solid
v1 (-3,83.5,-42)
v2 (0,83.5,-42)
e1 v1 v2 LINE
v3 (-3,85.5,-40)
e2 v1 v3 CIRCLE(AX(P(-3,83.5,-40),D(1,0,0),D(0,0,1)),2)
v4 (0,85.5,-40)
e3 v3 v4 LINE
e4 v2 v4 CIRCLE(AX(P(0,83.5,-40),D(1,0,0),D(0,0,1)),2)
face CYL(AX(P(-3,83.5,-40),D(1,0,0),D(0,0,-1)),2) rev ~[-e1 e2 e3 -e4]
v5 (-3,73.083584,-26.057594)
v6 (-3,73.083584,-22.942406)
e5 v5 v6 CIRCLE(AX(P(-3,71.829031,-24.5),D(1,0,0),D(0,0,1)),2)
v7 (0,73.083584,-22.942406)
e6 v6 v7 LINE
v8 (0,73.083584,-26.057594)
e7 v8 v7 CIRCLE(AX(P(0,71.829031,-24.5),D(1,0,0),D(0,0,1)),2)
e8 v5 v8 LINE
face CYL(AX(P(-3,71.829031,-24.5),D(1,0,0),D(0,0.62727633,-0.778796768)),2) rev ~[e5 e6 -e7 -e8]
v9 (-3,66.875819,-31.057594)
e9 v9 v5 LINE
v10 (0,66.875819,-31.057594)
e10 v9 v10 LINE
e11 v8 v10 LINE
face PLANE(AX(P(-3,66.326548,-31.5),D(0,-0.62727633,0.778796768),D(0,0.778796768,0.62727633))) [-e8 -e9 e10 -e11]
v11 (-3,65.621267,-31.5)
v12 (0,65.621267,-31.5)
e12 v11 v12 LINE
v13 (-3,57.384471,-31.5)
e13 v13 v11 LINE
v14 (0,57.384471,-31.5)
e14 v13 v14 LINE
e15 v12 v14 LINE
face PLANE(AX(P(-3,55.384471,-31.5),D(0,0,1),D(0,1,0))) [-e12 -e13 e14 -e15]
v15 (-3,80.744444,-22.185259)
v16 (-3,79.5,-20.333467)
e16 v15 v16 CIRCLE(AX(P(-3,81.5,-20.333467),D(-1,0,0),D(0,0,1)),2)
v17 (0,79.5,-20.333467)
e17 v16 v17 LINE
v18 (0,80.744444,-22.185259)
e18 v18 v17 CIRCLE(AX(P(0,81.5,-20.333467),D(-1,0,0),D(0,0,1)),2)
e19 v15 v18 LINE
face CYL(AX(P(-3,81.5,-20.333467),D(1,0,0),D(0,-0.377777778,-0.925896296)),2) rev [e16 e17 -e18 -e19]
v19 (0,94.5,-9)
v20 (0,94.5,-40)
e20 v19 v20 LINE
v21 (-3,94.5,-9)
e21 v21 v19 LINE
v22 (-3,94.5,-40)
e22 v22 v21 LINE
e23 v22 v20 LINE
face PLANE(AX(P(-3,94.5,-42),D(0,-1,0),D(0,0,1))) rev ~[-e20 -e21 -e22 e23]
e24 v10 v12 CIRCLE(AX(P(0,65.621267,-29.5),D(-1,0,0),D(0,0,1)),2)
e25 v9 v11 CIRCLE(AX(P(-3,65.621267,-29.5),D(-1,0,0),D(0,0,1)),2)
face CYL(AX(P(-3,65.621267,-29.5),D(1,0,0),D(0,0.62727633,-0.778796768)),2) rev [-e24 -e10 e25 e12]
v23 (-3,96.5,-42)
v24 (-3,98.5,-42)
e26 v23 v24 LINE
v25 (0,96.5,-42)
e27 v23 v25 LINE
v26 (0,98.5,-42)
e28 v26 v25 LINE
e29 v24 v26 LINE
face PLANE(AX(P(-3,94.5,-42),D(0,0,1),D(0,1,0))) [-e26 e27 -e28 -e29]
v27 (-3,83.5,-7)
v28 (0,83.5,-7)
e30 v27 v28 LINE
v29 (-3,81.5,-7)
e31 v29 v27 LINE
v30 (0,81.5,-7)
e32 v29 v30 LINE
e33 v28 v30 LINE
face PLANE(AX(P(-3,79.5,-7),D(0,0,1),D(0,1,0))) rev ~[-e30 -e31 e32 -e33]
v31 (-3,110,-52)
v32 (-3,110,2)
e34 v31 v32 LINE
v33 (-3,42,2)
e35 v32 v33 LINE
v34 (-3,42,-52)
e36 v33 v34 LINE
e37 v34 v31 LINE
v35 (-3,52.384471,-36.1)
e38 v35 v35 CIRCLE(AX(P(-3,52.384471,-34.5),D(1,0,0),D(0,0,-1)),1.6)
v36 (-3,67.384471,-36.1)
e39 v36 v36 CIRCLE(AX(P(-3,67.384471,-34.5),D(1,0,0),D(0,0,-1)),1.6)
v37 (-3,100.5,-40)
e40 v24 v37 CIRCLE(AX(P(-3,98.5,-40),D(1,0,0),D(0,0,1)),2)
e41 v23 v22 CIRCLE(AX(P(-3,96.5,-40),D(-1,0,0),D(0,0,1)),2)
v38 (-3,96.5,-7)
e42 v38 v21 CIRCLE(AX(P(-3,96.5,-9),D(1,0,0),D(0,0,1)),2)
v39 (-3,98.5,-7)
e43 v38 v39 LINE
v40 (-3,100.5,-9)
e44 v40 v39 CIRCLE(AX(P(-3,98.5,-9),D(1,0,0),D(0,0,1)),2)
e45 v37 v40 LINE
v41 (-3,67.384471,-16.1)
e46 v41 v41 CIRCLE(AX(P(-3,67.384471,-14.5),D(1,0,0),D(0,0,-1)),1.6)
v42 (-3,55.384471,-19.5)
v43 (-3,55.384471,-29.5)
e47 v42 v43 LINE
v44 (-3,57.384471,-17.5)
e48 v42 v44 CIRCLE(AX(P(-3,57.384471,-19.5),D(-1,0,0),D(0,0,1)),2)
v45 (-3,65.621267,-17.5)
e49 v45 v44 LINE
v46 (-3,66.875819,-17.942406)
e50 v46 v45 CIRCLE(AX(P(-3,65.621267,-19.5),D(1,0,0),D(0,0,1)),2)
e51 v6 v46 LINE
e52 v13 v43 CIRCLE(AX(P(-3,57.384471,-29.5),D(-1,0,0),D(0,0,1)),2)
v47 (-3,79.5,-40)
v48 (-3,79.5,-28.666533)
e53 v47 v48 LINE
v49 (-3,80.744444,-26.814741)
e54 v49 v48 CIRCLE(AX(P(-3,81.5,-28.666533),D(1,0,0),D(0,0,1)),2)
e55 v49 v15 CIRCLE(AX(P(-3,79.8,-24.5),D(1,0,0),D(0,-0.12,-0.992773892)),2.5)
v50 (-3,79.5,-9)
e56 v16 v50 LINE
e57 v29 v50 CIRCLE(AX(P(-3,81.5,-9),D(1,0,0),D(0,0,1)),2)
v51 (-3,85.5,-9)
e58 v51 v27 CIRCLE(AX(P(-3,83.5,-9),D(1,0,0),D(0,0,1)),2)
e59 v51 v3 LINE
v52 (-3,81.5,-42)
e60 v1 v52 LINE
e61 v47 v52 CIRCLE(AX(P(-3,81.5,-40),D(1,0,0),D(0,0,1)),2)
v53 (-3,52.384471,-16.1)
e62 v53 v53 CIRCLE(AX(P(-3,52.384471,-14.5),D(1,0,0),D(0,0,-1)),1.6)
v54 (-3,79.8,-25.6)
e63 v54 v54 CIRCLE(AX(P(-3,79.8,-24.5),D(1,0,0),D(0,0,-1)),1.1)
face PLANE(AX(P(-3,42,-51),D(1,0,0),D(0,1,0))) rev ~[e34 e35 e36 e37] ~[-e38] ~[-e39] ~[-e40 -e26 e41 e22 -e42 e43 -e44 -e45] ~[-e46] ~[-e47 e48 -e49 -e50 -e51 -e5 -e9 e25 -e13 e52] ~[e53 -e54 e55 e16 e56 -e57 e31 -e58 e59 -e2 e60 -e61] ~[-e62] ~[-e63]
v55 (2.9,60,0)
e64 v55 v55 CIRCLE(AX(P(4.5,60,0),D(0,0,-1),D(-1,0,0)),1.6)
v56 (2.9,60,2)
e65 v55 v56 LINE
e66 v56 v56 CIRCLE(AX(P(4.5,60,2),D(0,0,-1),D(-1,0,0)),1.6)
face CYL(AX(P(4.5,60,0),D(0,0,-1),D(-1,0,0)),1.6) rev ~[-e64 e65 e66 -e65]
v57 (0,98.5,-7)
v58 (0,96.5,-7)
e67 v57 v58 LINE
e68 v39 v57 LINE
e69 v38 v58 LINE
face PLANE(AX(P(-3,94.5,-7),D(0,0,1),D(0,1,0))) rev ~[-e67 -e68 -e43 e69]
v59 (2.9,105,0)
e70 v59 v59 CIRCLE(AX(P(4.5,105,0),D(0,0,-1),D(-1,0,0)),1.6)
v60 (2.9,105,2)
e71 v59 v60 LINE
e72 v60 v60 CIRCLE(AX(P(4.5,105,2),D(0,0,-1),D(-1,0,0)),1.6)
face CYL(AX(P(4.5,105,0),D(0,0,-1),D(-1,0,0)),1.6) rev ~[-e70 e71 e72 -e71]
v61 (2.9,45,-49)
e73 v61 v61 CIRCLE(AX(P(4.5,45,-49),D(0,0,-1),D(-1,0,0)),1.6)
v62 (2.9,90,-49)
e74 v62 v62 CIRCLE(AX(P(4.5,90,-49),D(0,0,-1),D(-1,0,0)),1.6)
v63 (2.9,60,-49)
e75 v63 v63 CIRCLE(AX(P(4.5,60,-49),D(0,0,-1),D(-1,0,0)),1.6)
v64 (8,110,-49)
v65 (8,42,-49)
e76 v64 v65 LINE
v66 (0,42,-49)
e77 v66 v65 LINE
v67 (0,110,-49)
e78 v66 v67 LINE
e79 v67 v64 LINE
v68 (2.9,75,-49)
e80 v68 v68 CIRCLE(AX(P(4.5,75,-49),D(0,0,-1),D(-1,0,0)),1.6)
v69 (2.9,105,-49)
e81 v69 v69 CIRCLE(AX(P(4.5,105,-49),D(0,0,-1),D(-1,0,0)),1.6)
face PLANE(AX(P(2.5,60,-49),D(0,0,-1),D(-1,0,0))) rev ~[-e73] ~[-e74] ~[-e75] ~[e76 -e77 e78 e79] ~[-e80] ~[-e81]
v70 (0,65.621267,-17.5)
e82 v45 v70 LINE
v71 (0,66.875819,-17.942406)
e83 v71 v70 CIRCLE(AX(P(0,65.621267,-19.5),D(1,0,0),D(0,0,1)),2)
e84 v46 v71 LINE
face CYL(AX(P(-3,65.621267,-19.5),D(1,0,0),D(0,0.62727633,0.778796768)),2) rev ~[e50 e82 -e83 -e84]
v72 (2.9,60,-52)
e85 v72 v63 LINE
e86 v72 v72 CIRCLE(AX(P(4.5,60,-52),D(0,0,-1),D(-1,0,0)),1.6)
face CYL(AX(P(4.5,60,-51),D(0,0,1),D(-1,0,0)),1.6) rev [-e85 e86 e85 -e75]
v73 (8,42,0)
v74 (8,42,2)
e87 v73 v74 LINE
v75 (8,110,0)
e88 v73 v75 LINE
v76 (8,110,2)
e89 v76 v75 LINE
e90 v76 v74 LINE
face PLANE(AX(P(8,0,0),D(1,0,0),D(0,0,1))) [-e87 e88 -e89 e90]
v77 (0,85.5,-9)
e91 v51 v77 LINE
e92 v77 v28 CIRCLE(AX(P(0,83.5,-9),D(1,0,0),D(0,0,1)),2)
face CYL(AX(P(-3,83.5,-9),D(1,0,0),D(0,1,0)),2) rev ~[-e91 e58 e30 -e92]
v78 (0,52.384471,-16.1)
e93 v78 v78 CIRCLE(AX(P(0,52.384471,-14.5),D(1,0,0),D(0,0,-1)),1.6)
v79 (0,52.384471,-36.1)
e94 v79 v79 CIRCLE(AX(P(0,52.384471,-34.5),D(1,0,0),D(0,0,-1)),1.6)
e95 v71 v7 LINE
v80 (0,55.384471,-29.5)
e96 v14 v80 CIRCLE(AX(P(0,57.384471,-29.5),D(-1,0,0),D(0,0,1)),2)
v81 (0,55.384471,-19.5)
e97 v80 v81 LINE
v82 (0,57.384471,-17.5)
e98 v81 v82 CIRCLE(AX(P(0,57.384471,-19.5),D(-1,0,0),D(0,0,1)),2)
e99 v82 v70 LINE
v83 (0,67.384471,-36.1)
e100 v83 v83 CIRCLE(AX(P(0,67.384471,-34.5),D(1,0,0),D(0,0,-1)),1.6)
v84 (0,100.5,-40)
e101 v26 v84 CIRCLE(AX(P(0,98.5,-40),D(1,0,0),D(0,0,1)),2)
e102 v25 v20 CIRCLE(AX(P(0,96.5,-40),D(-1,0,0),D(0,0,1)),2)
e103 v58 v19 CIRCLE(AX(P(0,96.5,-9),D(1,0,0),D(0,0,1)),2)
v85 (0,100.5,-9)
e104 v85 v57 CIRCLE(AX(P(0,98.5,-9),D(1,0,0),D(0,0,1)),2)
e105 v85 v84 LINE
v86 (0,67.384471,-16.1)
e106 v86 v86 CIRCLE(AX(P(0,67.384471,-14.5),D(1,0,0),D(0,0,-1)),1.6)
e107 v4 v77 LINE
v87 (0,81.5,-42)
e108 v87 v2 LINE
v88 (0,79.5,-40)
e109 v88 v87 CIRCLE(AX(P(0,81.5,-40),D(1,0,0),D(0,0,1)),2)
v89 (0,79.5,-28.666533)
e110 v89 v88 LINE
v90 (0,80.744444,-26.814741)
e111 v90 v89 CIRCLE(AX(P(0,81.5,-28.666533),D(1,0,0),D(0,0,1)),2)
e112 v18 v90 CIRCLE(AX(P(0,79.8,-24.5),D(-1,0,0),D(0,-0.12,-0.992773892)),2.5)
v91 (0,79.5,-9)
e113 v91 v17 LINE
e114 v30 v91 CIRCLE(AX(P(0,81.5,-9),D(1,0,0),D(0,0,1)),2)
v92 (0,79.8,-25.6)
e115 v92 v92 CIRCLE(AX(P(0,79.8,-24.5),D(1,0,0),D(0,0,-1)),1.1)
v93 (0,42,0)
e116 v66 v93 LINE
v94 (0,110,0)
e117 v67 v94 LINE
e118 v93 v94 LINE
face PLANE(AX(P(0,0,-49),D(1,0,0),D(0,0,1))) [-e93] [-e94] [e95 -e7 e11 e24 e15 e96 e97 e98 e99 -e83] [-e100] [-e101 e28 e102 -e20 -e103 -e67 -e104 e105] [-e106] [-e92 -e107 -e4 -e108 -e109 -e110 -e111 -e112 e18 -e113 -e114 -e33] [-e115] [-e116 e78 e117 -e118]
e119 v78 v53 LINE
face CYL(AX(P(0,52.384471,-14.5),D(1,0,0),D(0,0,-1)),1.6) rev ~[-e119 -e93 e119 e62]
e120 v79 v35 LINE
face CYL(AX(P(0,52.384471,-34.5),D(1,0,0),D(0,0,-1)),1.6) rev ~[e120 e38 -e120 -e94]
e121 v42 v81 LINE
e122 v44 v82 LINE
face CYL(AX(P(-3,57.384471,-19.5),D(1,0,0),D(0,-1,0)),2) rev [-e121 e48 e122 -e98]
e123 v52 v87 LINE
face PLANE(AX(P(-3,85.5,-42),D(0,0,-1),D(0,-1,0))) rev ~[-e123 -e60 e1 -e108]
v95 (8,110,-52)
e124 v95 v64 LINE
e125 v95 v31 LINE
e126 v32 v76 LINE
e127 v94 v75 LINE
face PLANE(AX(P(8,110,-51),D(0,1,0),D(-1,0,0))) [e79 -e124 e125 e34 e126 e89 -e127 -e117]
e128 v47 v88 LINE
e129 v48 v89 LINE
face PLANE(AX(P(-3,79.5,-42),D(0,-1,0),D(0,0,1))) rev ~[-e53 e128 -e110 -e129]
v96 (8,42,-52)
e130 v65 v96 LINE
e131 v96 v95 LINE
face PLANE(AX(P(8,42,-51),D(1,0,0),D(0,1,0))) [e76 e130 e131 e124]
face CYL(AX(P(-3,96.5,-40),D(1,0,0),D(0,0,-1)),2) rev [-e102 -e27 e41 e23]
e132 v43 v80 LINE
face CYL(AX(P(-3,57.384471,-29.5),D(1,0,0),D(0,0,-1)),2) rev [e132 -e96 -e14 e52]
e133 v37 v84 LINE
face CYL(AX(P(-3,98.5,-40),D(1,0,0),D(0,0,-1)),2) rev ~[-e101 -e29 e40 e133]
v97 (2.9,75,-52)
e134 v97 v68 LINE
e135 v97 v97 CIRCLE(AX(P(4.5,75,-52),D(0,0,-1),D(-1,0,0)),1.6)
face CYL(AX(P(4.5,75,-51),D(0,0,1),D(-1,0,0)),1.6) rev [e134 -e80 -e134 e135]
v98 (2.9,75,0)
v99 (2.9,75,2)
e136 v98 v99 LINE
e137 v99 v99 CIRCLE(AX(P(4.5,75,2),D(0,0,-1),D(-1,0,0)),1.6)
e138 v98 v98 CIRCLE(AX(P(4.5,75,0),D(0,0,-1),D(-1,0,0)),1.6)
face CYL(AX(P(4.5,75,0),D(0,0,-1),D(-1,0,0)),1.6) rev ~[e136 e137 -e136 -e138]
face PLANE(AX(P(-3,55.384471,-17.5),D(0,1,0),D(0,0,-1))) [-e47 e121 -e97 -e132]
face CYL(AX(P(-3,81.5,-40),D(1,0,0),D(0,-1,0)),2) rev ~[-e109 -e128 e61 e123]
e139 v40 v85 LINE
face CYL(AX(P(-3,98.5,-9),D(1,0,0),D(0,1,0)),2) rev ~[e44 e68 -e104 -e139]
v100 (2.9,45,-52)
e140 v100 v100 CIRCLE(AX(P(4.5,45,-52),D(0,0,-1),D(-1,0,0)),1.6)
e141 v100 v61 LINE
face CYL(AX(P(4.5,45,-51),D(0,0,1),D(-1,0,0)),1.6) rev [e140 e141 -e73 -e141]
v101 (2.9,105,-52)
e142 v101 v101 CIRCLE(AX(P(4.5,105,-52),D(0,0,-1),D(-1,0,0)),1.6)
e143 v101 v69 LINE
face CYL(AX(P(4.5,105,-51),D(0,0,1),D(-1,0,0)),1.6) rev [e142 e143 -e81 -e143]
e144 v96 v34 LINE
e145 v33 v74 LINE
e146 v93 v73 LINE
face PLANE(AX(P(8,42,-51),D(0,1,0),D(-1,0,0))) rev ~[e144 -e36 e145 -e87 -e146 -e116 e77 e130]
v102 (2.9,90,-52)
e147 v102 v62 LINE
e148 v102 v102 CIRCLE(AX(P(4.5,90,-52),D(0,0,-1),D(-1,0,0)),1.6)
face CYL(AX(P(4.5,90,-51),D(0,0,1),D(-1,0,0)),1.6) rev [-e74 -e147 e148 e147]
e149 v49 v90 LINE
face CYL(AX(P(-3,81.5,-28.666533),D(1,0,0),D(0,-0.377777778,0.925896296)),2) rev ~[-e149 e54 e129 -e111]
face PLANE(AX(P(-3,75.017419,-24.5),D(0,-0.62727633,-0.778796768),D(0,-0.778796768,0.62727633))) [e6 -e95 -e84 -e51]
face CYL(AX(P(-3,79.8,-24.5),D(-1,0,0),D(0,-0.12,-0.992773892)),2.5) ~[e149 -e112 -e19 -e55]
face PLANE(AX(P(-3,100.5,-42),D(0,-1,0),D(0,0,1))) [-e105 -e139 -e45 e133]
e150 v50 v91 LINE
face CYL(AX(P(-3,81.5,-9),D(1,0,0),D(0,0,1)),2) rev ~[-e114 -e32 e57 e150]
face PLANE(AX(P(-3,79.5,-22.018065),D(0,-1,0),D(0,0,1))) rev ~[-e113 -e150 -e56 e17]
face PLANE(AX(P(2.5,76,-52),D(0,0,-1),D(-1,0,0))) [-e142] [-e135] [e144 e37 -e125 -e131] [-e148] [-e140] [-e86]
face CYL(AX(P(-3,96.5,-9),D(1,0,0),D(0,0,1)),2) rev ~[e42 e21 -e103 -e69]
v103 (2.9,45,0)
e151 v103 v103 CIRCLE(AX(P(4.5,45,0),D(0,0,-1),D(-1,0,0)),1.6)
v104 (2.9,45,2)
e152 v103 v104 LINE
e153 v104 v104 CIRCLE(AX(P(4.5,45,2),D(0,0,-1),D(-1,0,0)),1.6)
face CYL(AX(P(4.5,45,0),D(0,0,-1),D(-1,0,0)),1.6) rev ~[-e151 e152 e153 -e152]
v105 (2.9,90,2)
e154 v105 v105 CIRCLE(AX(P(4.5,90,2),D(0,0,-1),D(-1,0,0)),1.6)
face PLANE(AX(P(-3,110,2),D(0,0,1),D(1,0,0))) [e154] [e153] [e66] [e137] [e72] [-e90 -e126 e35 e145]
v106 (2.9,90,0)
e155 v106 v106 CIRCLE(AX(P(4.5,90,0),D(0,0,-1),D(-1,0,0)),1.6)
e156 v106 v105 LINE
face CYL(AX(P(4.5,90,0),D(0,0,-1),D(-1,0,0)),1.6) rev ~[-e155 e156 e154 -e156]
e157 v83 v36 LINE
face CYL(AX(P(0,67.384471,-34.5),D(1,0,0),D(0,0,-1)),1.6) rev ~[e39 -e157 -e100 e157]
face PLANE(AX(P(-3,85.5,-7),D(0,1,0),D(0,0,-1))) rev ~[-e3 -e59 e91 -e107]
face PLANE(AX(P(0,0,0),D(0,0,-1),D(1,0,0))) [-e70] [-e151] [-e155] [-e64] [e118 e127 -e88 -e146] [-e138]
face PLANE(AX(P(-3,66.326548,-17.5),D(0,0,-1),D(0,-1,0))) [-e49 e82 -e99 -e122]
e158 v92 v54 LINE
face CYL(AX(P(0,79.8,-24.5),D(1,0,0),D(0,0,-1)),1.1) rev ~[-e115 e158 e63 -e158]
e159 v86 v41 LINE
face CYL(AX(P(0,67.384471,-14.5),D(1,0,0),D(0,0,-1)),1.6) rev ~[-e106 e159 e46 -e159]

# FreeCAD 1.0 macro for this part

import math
import FreeCAD as App
import Part
import Sketcher

V = App.Vector
Q = App.Units.Quantity


def edges_at(feature, points):
    """Names of the edges that pass closest to the given points."""
    edges = feature.Shape.Edges
    near = lambda p: min(range(len(edges)), key=lambda i: edges[i].distToShape(Part.Vertex(*p))[0])
    return sorted({f"Edge{near(p) + 1}" for p in points})

doc = App.newDocument("Part")
body = doc.addObject("PartDesign::Body", "Body")

# Sketch on XZ plane
sketch1 = body.newObject("Sketcher::SketchObject", "Sketch")
sketch1.AttachmentSupport = (doc.getObject("XZ_Plane"), [""])
sketch1.MapMode = "FlatFace"
sketch1.addGeometry([
    Part.LineSegment(V(8, 0, 0), V(0, 0, 0)),  # 0
    Part.LineSegment(V(0, 0, 0), V(0, -49, 0)),  # 1
    Part.LineSegment(V(0, -49, 0), V(-3, -49, 0)),  # 2
    Part.LineSegment(V(-3, -49, 0), V(-3, 3, 0)),  # 3
    Part.LineSegment(V(-3, 3, 0), V(8, 3, 0)),  # 4
    Part.LineSegment(V(8, 3, 0), V(8, 0, 0)),  # 5
], False)
sketch1.addConstraint([
    Sketcher.Constraint("Coincident", 0, 2, 1, 1),
    Sketcher.Constraint("Coincident", 1, 2, 2, 1),
    Sketcher.Constraint("Coincident", 2, 2, 3, 1),
    Sketcher.Constraint("Coincident", 3, 2, 4, 1),
    Sketcher.Constraint("Coincident", 4, 2, 5, 1),
    Sketcher.Constraint("Coincident", 5, 2, 0, 1),
    Sketcher.Constraint("Horizontal", 0),
    Sketcher.Constraint("Vertical", 1),
    Sketcher.Constraint("Horizontal", 2),
    Sketcher.Constraint("Vertical", 3),
    Sketcher.Constraint("Horizontal", 4),
    Sketcher.Constraint("Vertical", 5),
    Sketcher.Constraint("Coincident", 0, 2, -1, 1),
    Sketcher.Constraint("Equal", 2, 5),
    Sketcher.Constraint("DistanceX", 0, 2, 0, 1, Q("8 mm")),
    Sketcher.Constraint("DistanceX", 2, 2, 2, 1, Q("3 mm")),
    Sketcher.Constraint("DistanceY", 1, 2, 1, 1, Q("49 mm")),
])
pad1 = body.newObject("PartDesign::Pad", "Pad")
pad1.Profile = sketch1
pad1.Length = 120
pad1.Reversed = True

# Sketch on XY plane
sketch2 = body.newObject("Sketcher::SketchObject", "Sketch001")
sketch2.AttachmentSupport = (doc.getObject("XY_Plane"), [""])
sketch2.MapMode = "FlatFace"
sketch2.addGeometry([
    Part.Circle(V(4.5, 60, 0), V(0, 0, 1), 1.6),  # 0
    Part.Circle(V(4.5, 45, 0), V(0, 0, 1), 1.6),  # 1
    Part.Circle(V(4.5, 30, 0), V(0, 0, 1), 1.6),  # 2
    Part.Circle(V(4.5, 15, 0), V(0, 0, 1), 1.6),  # 3
    Part.Circle(V(4.5, 75, 0), V(0, 0, 1), 1.6),  # 4
    Part.Circle(V(4.5, 90, 0), V(0, 0, 1), 1.6),  # 5
    Part.Circle(V(4.5, 105, 0), V(0, 0, 1), 1.6),  # 6
], False)
sketch2.addConstraint([
    Sketcher.Constraint("Equal", 0, 1),
    Sketcher.Constraint("Equal", 1, 2),
    Sketcher.Constraint("Equal", 2, 3),
    Sketcher.Constraint("Equal", 3, 4),
    Sketcher.Constraint("Equal", 4, 5),
    Sketcher.Constraint("Equal", 5, 6),
    Sketcher.Constraint("Vertical", 0, 3, 1, 3),
    Sketcher.Constraint("Vertical", 1, 3, 2, 3),
    Sketcher.Constraint("Vertical", 2, 3, 3, 3),
    Sketcher.Constraint("Vertical", 3, 3, 4, 3),
    Sketcher.Constraint("Vertical", 4, 3, 5, 3),
    Sketcher.Constraint("Vertical", 5, 3, 6, 3),
    Sketcher.Constraint("Diameter", 0, Q("3.2 mm")),
    Sketcher.Constraint("DistanceY", -1, 1, 0, 3, Q("60 mm")),
    Sketcher.Constraint("DistanceY", -1, 1, 1, 3, Q("45 mm")),
    Sketcher.Constraint("DistanceY", -1, 1, 2, 3, Q("30 mm")),
    Sketcher.Constraint("DistanceY", -1, 1, 3, 3, Q("15 mm")),
    Sketcher.Constraint("DistanceY", -1, 1, 4, 3, Q("75 mm")),
    Sketcher.Constraint("DistanceY", -1, 1, 5, 3, Q("90 mm")),
    Sketcher.Constraint("DistanceY", -1, 1, 6, 3, Q("105 mm")),
    Sketcher.Constraint("DistanceX", -1, 1, 0, 3, Q("4.5 mm")),
])
pocket1 = body.newObject("PartDesign::Pocket", "Pocket")
pocket1.Profile = sketch2
pocket1.Length = 120
pocket1.Reversed = True

# Sketch on YZ plane
sketch3 = body.newObject("Sketcher::SketchObject", "Sketch002")
sketch3.AttachmentSupport = (doc.getObject("YZ_Plane"), [""])
sketch3.MapMode = "FlatFace"
sketch3.addGeometry([
    Part.Circle(V(7.4, -14.5, 0), V(0, 0, 1), 1.6),  # 0
    Part.Circle(V(22.4, -14.5, 0), V(0, 0, 1), 1.6),  # 1
    Part.Circle(V(37.4, -14.5, 0), V(0, 0, 1), 1.6),  # 2
    Part.Circle(V(52.4, -14.5, 0), V(0, 0, 1), 1.6),  # 3
    Part.Circle(V(67.4, -14.5, 0), V(0, 0, 1), 1.6),  # 4
    Part.Circle(V(67.4, -34.5, 0), V(0, 0, 1), 1.6),  # 5
    Part.Circle(V(52.4, -34.5, 0), V(0, 0, 1), 1.6),  # 6
    Part.Circle(V(37.4, -34.5, 0), V(0, 0, 1), 1.6),  # 7
    Part.Circle(V(22.4, -34.5, 0), V(0, 0, 1), 1.6),  # 8
    Part.Circle(V(7.4, -34.5, 0), V(0, 0, 1), 1.6),  # 9
], False)
sketch3.addConstraint([
    Sketcher.Constraint("Equal", 0, 1),
    Sketcher.Constraint("Equal", 1, 2),
    Sketcher.Constraint("Equal", 2, 3),
    Sketcher.Constraint("Equal", 3, 4),
    Sketcher.Constraint("Equal", 4, 5),
    Sketcher.Constraint("Equal", 5, 6),
    Sketcher.Constraint("Equal", 6, 7),
    Sketcher.Constraint("Equal", 7, 8),
    Sketcher.Constraint("Equal", 8, 9),
    Sketcher.Constraint("Horizontal", 0, 3, 1, 3),
    Sketcher.Constraint("Horizontal", 1, 3, 2, 3),
    Sketcher.Constraint("Horizontal", 2, 3, 3, 3),
    Sketcher.Constraint("Horizontal", 3, 3, 4, 3),
    Sketcher.Constraint("Horizontal", 5, 3, 6, 3),
    Sketcher.Constraint("Horizontal", 6, 3, 7, 3),
    Sketcher.Constraint("Horizontal", 7, 3, 8, 3),
    Sketcher.Constraint("Horizontal", 8, 3, 9, 3),
    Sketcher.Constraint("Vertical", 4, 3, 5, 3),
    Sketcher.Constraint("Vertical", 3, 3, 6, 3),
    Sketcher.Constraint("Vertical", 2, 3, 7, 3),
    Sketcher.Constraint("Vertical", 1, 3, 8, 3),
    Sketcher.Constraint("Vertical", 0, 3, 9, 3),
    Sketcher.Constraint("Diameter", 0, Q("3.2 mm")),
    Sketcher.Constraint("DistanceX", 0, 3, 1, 3, Q("15 mm")),
    Sketcher.Constraint("DistanceX", 1, 3, 2, 3, Q("15 mm")),
    Sketcher.Constraint("DistanceX", 2, 3, 3, 3, Q("15 mm")),
    Sketcher.Constraint("DistanceX", 3, 3, 4, 3, Q("15 mm")),
    Sketcher.Constraint("DistanceY", 5, 3, 4, 3, Q("20 mm")),
    Sketcher.Constraint("DistanceY", 0, 3, -1, 1, Q("14.5 mm")),
    Sketcher.Constraint("DistanceX", -1, 1, 0, 3, Q("7.384471 mm")),
])
pocket2 = body.newObject("PartDesign::Pocket", "Pocket001")
pocket2.Profile = sketch3
pocket2.Length = 10

# Sketch on YZ plane
sketch4 = body.newObject("Sketcher::SketchObject", "Sketch003")
sketch4.AttachmentSupport = (doc.getObject("YZ_Plane"), [""])
sketch4.MapMode = "FlatFace"
sketch4.addGeometry([
    Part.Circle(V(117, -15.7, 0), V(0, 0, 1), 1.1),
    Part.Circle(V(117, -33.3, 0), V(0, 0, 1), 1.1),
    Part.Circle(V(79.8, -24.5, 0), V(0, 0, 1), 1.1),
], False)
sketch4.addConstraint([
    Sketcher.Constraint("Equal", 0, 1),
    Sketcher.Constraint("Equal", 1, 2),
    Sketcher.Constraint("Vertical", 0, 3, 1, 3),
    Sketcher.Constraint("Diameter", 0, Q("2.2 mm")),
    Sketcher.Constraint("DistanceX", -1, 1, 0, 3, Q("117 mm")),
    Sketcher.Constraint("DistanceY", 0, 3, -1, 1, Q("15.7 mm")),
    Sketcher.Constraint("DistanceY", 1, 3, -1, 1, Q("33.3 mm")),
    Sketcher.Constraint("DistanceX", -1, 1, 2, 3, Q("79.8 mm")),
    Sketcher.Constraint("DistanceY", 2, 3, -1, 1, Q("24.5 mm")),
])
pocket3 = body.newObject("PartDesign::Pocket", "Pocket002")
pocket3.Profile = sketch4
pocket3.Length = 12

# Sketch on XY plane
sketch5 = body.newObject("Sketcher::SketchObject", "Sketch004")
sketch5.AttachmentSupport = (doc.getObject("XY_Plane"), [""])
sketch5.MapMode = "FlatFace"
sketch5.AttachmentOffset = App.Placement(V(0, 0, -49), App.Rotation())
sketch5.addGeometry([
    Part.LineSegment(V(8, 120, 0), V(8, 0, 0)),
    Part.LineSegment(V(8, 0, 0), V(-3, 0, 0)),
    Part.LineSegment(V(-3, 0, 0), V(-3, 120, 0)),
    Part.LineSegment(V(-3, 120, 0), V(8, 120, 0)),
], False)
sketch5.addConstraint([
    Sketcher.Constraint("Coincident", 0, 2, 1, 1),
    Sketcher.Constraint("Coincident", 1, 2, 2, 1),
    Sketcher.Constraint("Coincident", 2, 2, 3, 1),
    Sketcher.Constraint("Coincident", 3, 2, 0, 1),
    Sketcher.Constraint("Vertical", 0),
    Sketcher.Constraint("Horizontal", 1),
    Sketcher.Constraint("Vertical", 2),
    Sketcher.Constraint("Horizontal", 3),
    Sketcher.Constraint("PointOnObject", 0, 2, -1),
    Sketcher.Constraint("DistanceX", 1, 2, 1, 1, Q("11 mm")),
    Sketcher.Constraint("DistanceY", 0, 2, 0, 1, Q("120 mm")),
    Sketcher.Constraint("DistanceX", -1, 1, 0, 2, Q("8 mm")),
])
pad2 = body.newObject("PartDesign::Pad", "Pad001")
pad2.Profile = sketch5
pad2.Length = 2
pad2.Reversed = True
doc.recompute()

datumplane = body.newObject("PartDesign::Plane", "DatumPlane")
datumplane.AttachmentSupport = (doc.getObject("XY_Plane"), [""])
datumplane.MapMode = "FlatFace"
datumplane.AttachmentOffset = App.Placement(V(0, 0, -24.5), App.Rotation())
mirrored = body.newObject("PartDesign::Mirrored", "Mirrored")
mirrored.Originals = [pocket1]
mirrored.MirrorPlane = (datumplane, [""])
body.Tip = mirrored

# Sketch on YZ plane
sketch6 = body.newObject("Sketcher::SketchObject", "Sketch005")
sketch6.AttachmentSupport = (doc.getObject("YZ_Plane"), [""])
sketch6.MapMode = "FlatFace"
sketch6.addGeometry([
    Part.LineSegment(V(30, 0, 0), V(0, 0, 0)),
    Part.LineSegment(V(0, 0, 0), V(0, -49, 0)),
    Part.LineSegment(V(0, -49, 0), V(30, -49, 0)),
    Part.LineSegment(V(30, -49, 0), V(30, 0, 0)),
], False)
sketch6.addConstraint([
    Sketcher.Constraint("Coincident", 0, 2, 1, 1),
    Sketcher.Constraint("Coincident", 1, 2, 2, 1),
    Sketcher.Constraint("Coincident", 2, 2, 3, 1),
    Sketcher.Constraint("Coincident", 3, 2, 0, 1),
    Sketcher.Constraint("Horizontal", 0),
    Sketcher.Constraint("Vertical", 1),
    Sketcher.Constraint("Horizontal", 2),
    Sketcher.Constraint("Vertical", 3),
    Sketcher.Constraint("Coincident", 0, 2, -1, 1),
    Sketcher.Constraint("DistanceX", 0, 2, 0, 1, Q("30 mm")),
    Sketcher.Constraint("DistanceY", 1, 2, 1, 1, Q("49 mm")),
])
pocket4 = body.newObject("PartDesign::Pocket", "Pocket003")
pocket4.Profile = sketch6
pocket4.Length = 10

# Sketch on YZ plane
sketch7 = body.newObject("Sketcher::SketchObject", "Sketch006")
sketch7.AttachmentSupport = (doc.getObject("YZ_Plane"), [""])
sketch7.MapMode = "FlatFace"
sketch7.addGeometry([
    Part.LineSegment(V(30, 3, 0), V(0, 3, 0)),
    Part.LineSegment(V(0, 3, 0), V(0, 0, 0)),
    Part.LineSegment(V(0, 0, 0), V(30, 0, 0)),
    Part.LineSegment(V(30, 0, 0), V(30, 3, 0)),
], False)
sketch7.addConstraint([
    Sketcher.Constraint("Coincident", 0, 2, 1, 1),
    Sketcher.Constraint("Coincident", 1, 2, 2, 1),
    Sketcher.Constraint("Coincident", 2, 2, 3, 1),
    Sketcher.Constraint("Coincident", 3, 2, 0, 1),
    Sketcher.Constraint("Horizontal", 0),
    Sketcher.Constraint("Vertical", 1),
    Sketcher.Constraint("Horizontal", 2),
    Sketcher.Constraint("Vertical", 3),
    Sketcher.Constraint("Coincident", 1, 2, -1, 1),
    Sketcher.Constraint("DistanceX", 0, 2, 0, 1, Q("30 mm")),
    Sketcher.Constraint("DistanceY", 1, 2, 1, 1, Q("3 mm")),
])
pocket5 = body.newObject("PartDesign::Pocket", "Pocket004")
pocket5.Profile = sketch7
pocket5.Type = "ThroughAll"
pocket5.Midplane = True

# Sketch on YZ plane
sketch8 = body.newObject("Sketcher::SketchObject", "Sketch007")
sketch8.AttachmentSupport = (doc.getObject("YZ_Plane"), [""])
sketch8.MapMode = "FlatFace"
sketch8.addGeometry([
    Part.LineSegment(V(42, 3, 0), V(30, 3, 0)),
    Part.LineSegment(V(30, 3, 0), V(30, -49, 0)),
    Part.LineSegment(V(30, -49, 0), V(42, -49, 0)),
    Part.LineSegment(V(42, -49, 0), V(42, 3, 0)),
], False)
sketch8.addConstraint([
    Sketcher.Constraint("Coincident", 0, 2, 1, 1),
    Sketcher.Constraint("Coincident", 1, 2, 2, 1),
    Sketcher.Constraint("Coincident", 2, 2, 3, 1),
    Sketcher.Constraint("Coincident", 3, 2, 0, 1),
    Sketcher.Constraint("Horizontal", 0),
    Sketcher.Constraint("Vertical", 1),
    Sketcher.Constraint("Horizontal", 2),
    Sketcher.Constraint("Vertical", 3),
    Sketcher.Constraint("DistanceX", 0, 2, 0, 1, Q("12 mm")),
    Sketcher.Constraint("DistanceY", 1, 2, 1, 1, Q("52 mm")),
    Sketcher.Constraint("DistanceX", -1, 1, 0, 2, Q("30 mm")),
    Sketcher.Constraint("DistanceY", -1, 1, 0, 2, Q("3 mm")),
])
pocket6 = body.newObject("PartDesign::Pocket", "Pocket005")
pocket6.Profile = sketch8
pocket6.Type = "ThroughAll"
pocket6.Midplane = True

# Sketch on YZ plane
sketch9 = body.newObject("Sketcher::SketchObject", "Sketch008")
sketch9.AttachmentSupport = (doc.getObject("YZ_Plane"), [""])
sketch9.MapMode = "FlatFace"
sketch9.AttachmentOffset = App.Placement(V(0, 0, -3), App.Rotation())
sketch9.addGeometry([
    Part.LineSegment(V(42, -51, 0), V(0, -51, 0)),
    Part.LineSegment(V(0, -51, 0), V(0, -49, 0)),
    Part.LineSegment(V(0, -49, 0), V(42, -49, 0)),
    Part.LineSegment(V(42, -49, 0), V(42, -51, 0)),
], False)
sketch9.addConstraint([
    Sketcher.Constraint("Coincident", 0, 2, 1, 1),
    Sketcher.Constraint("Coincident", 1, 2, 2, 1),
    Sketcher.Constraint("Coincident", 2, 2, 3, 1),
    Sketcher.Constraint("Coincident", 3, 2, 0, 1),
    Sketcher.Constraint("Horizontal", 0),
    Sketcher.Constraint("Vertical", 1),
    Sketcher.Constraint("Horizontal", 2),
    Sketcher.Constraint("Vertical", 3),
    Sketcher.Constraint("PointOnObject", 0, 2, -2),
    Sketcher.Constraint("DistanceX", 0, 2, 0, 1, Q("42 mm")),
    Sketcher.Constraint("DistanceY", 1, 1, 1, 2, Q("2 mm")),
    Sketcher.Constraint("DistanceY", 0, 2, -1, 1, Q("51 mm")),
])
pocket7 = body.newObject("PartDesign::Pocket", "Pocket006")
pocket7.Profile = sketch9
pocket7.Length = 20
pocket7.Reversed = True

# Sketch on XZ plane
sketch10 = body.newObject("Sketcher::SketchObject", "Sketch009")
sketch10.AttachmentSupport = (doc.getObject("XZ_Plane"), [""])
sketch10.MapMode = "FlatFace"
sketch10.AttachmentOffset = App.Placement(V(0, 0, -120), App.Rotation())
sketch10.addGeometry([
    Part.LineSegment(V(-3, -51, 0), V(-3, 3, 0)),
    Part.LineSegment(V(-3, 3, 0), V(8, 3, 0)),
    Part.LineSegment(V(8, 3, 0), V(8, -51, 0)),
    Part.LineSegment(V(8, -51, 0), V(-3, -51, 0)),
], False)
sketch10.addConstraint([
    Sketcher.Constraint("Coincident", 0, 2, 1, 1),
    Sketcher.Constraint("Coincident", 1, 2, 2, 1),
    Sketcher.Constraint("Coincident", 2, 2, 3, 1),
    Sketcher.Constraint("Coincident", 3, 2, 0, 1),
    Sketcher.Constraint("Vertical", 0),
    Sketcher.Constraint("Horizontal", 1),
    Sketcher.Constraint("Vertical", 2),
    Sketcher.Constraint("Horizontal", 3),
    Sketcher.Constraint("DistanceX", 1, 1, 1, 2, Q("11 mm")),
    Sketcher.Constraint("DistanceY", 0, 1, 0, 2, Q("54 mm")),
    Sketcher.Constraint("DistanceX", 0, 2, -1, 1, Q("3 mm")),
    Sketcher.Constraint("DistanceY", -1, 1, 0, 2, Q("3 mm")),
])
pocket8 = body.newObject("PartDesign::Pocket", "Pocket007")
pocket8.Profile = sketch10
pocket8.Length = 10
pocket8.Reversed = True

# Sketch on XY plane
sketch11 = body.newObject("Sketcher::SketchObject", "Sketch010")
sketch11.AttachmentSupport = (doc.getObject("XY_Plane"), [""])
sketch11.MapMode = "FlatFace"
sketch11.AttachmentOffset = App.Placement(V(0, 0, -51), App.Rotation())
sketch11.addGeometry([
    Part.LineSegment(V(8, 110, 0), V(8, 42, 0)),  # 0
    Part.LineSegment(V(8, 42, 0), V(-3, 42, 0)),  # 1
    Part.LineSegment(V(-3, 42, 0), V(-3, 110, 0)),  # 2
    Part.LineSegment(V(-3, 110, 0), V(8, 110, 0)),  # 3
    Part.Circle(V(4.5, 45, 0), V(0, 0, 1), 1.6),  # 4
    Part.Circle(V(4.5, 60, 0), V(0, 0, 1), 1.6),  # 5
    Part.Circle(V(4.5, 75, 0), V(0, 0, 1), 1.6),  # 6
    Part.Circle(V(4.5, 90, 0), V(0, 0, 1), 1.6),  # 7
    Part.Circle(V(4.5, 105, 0), V(0, 0, 1), 1.6),  # 8
], False)
sketch11.addConstraint([
    Sketcher.Constraint("Coincident", 0, 2, 1, 1),
    Sketcher.Constraint("Coincident", 1, 2, 2, 1),
    Sketcher.Constraint("Coincident", 2, 2, 3, 1),
    Sketcher.Constraint("Coincident", 3, 2, 0, 1),
    Sketcher.Constraint("Vertical", 0),
    Sketcher.Constraint("Horizontal", 1),
    Sketcher.Constraint("Vertical", 2),
    Sketcher.Constraint("Horizontal", 3),
    Sketcher.Constraint("Equal", 4, 5),
    Sketcher.Constraint("Equal", 5, 6),
    Sketcher.Constraint("Equal", 6, 7),
    Sketcher.Constraint("Equal", 7, 8),
    Sketcher.Constraint("Vertical", 4, 3, 5, 3),
    Sketcher.Constraint("Vertical", 5, 3, 6, 3),
    Sketcher.Constraint("Vertical", 6, 3, 7, 3),
    Sketcher.Constraint("Vertical", 7, 3, 8, 3),
    Sketcher.Constraint("Diameter", 4, Q("3.2 mm")),
    Sketcher.Constraint("DistanceX", 1, 2, 1, 1, Q("11 mm")),
    Sketcher.Constraint("DistanceY", 0, 2, 0, 1, Q("68 mm")),
    Sketcher.Constraint("DistanceY", -1, 1, 4, 3, Q("45 mm")),
    Sketcher.Constraint("DistanceY", -1, 1, 5, 3, Q("60 mm")),
    Sketcher.Constraint("DistanceY", -1, 1, 6, 3, Q("75 mm")),
    Sketcher.Constraint("DistanceY", -1, 1, 7, 3, Q("90 mm")),
    Sketcher.Constraint("DistanceY", -1, 1, 8, 3, Q("105 mm")),
    Sketcher.Constraint("DistanceX", -1, 1, 0, 2, Q("8 mm")),
    Sketcher.Constraint("DistanceY", -1, 1, 0, 2, Q("42 mm")),
    Sketcher.Constraint("DistanceX", -1, 1, 4, 3, Q("4.5 mm")),
])
pad3 = body.newObject("PartDesign::Pad", "Pad002")
pad3.Profile = sketch11
pad3.Length = 1
pad3.Reversed = True

# Sketch on XZ plane
sketch12 = body.newObject("Sketcher::SketchObject", "Sketch011")
sketch12.AttachmentSupport = (doc.getObject("XZ_Plane"), [""])
sketch12.MapMode = "FlatFace"
sketch12.AttachmentOffset = App.Placement(V(0, 0, -110), App.Rotation())
sketch12.addGeometry([
    Part.LineSegment(V(-3, 2, 0), V(-3, 3, 0)),
    Part.LineSegment(V(-3, 3, 0), V(8, 3, 0)),
    Part.LineSegment(V(8, 3, 0), V(8, 2, 0)),
    Part.LineSegment(V(8, 2, 0), V(-3, 2, 0)),
], False)
sketch12.addConstraint([
    Sketcher.Constraint("Coincident", 0, 2, 1, 1),
    Sketcher.Constraint("Coincident", 1, 2, 2, 1),
    Sketcher.Constraint("Coincident", 2, 2, 3, 1),
    Sketcher.Constraint("Coincident", 3, 2, 0, 1),
    Sketcher.Constraint("Vertical", 0),
    Sketcher.Constraint("Horizontal", 1),
    Sketcher.Constraint("Vertical", 2),
    Sketcher.Constraint("Horizontal", 3),
    Sketcher.Constraint("DistanceX", 1, 1, 1, 2, Q("11 mm")),
    Sketcher.Constraint("DistanceY", 0, 1, 0, 2, Q("1 mm")),
    Sketcher.Constraint("DistanceX", 0, 2, -1, 1, Q("3 mm")),
    Sketcher.Constraint("DistanceY", -1, 1, 0, 2, Q("3 mm")),
])
pocket9 = body.newObject("PartDesign::Pocket", "Pocket008")
pocket9.Profile = sketch12
pocket9.Length = 91
pocket9.Reversed = True

# Sketch on YZ plane
sketch13 = body.newObject("Sketcher::SketchObject", "Sketch012")
sketch13.AttachmentSupport = (doc.getObject("YZ_Plane"), [""])
sketch13.MapMode = "FlatFace"
sketch13.AttachmentOffset = App.Placement(V(0, 0, -3), App.Rotation())
sketch13.addGeometry([
    Part.LineSegment(V(75, -24, 0), V(66, -32, 0)),  # 0
    Part.LineSegment(V(66, -32, 0), V(55, -32, 0)),  # 1
    Part.LineSegment(V(55, -32, 0), V(55, -18, 0)),  # 2
    Part.LineSegment(V(55, -18, 0), V(66, -18, 0)),  # 3
    Part.LineSegment(V(66, -18, 0), V(75, -24, 0)),  # 4
], False)
sketch13.addConstraint([
    Sketcher.Constraint("Coincident", 0, 2, 1, 1),
    Sketcher.Constraint("Coincident", 1, 2, 2, 1),
    Sketcher.Constraint("Coincident", 2, 2, 3, 1),
    Sketcher.Constraint("Coincident", 3, 2, 4, 1),
    Sketcher.Constraint("Coincident", 4, 2, 0, 1),
    Sketcher.Constraint("Horizontal", 1),
    Sketcher.Constraint("Vertical", 2),
    Sketcher.Constraint("Horizontal", 3),
    Sketcher.Constraint("Vertical", 0, 2, 3, 2),
    Sketcher.Constraint("Equal", 0, 4),
    Sketcher.Constraint("DistanceY", 2, 1, 2, 2, Q("14 mm")),
    Sketcher.Constraint("DistanceY", 0, 2, -1, 1, Q("31.5 mm")),
    Sketcher.Constraint("DistanceX", 1, 2, 1, 1, Q("10.942078 mm")),
    Sketcher.Constraint("DistanceX", -1, 1, 0, 2, Q("66.326548 mm")),
    Sketcher.Constraint("DistanceX", -1, 1, 4, 2, Q("75.017419 mm")),
])
pocket10 = body.newObject("PartDesign::Pocket", "Pocket009")
pocket10.Profile = sketch13
pocket10.Length = 10
pocket10.Reversed = True

# Sketch on YZ plane
sketch14 = body.newObject("Sketcher::SketchObject", "Sketch013")
sketch14.AttachmentSupport = (doc.getObject("YZ_Plane"), [""])
sketch14.MapMode = "FlatFace"
sketch14.AttachmentOffset = App.Placement(V(0, 0, -3), App.Rotation())
sketch14.addGeometry([
    Part.LineSegment(V(100.5, -42, 0), V(94.5, -42, 0)),  # 0
    Part.LineSegment(V(94.5, -42, 0), V(94.5, -7, 0)),  # 1
    Part.LineSegment(V(94.5, -7, 0), V(100.5, -7, 0)),  # 2
    Part.LineSegment(V(100.5, -7, 0), V(100.5, -42, 0)),  # 3
    Part.LineSegment(V(79.5, -22, 0), V(79.5, -7, 0)),  # 4
    Part.LineSegment(V(79.5, -7, 0), V(85.5, -7, 0)),  # 5
    Part.LineSegment(V(85.5, -7, 0), V(85.5, -42, 0)),  # 6
    Part.LineSegment(V(85.5, -42, 0), V(79.5, -42, 0)),  # 7
    Part.LineSegment(V(79.5, -42, 0), V(79.5, -27, 0)),  # 8
    Part.ArcOfCircle(Part.Circle(V(79.8, -24.5, 0), V(0, 0, 1), 2.5), math.radians(-97), math.radians(97)),  # 9
], False)
sketch14.addConstraint([
    Sketcher.Constraint("Coincident", 0, 2, 1, 1),
    Sketcher.Constraint("Coincident", 1, 2, 2, 1),
    Sketcher.Constraint("Coincident", 2, 2, 3, 1),
    Sketcher.Constraint("Coincident", 3, 2, 0, 1),
    Sketcher.Constraint("Coincident", 4, 2, 5, 1),
    Sketcher.Constraint("Coincident", 5, 2, 6, 1),
    Sketcher.Constraint("Coincident", 6, 2, 7, 1),
    Sketcher.Constraint("Coincident", 7, 2, 8, 1),
    Sketcher.Constraint("Coincident", 8, 2, 9, 1),
    Sketcher.Constraint("Coincident", 9, 2, 4, 1),
    Sketcher.Constraint("Horizontal", 0),
    Sketcher.Constraint("Vertical", 1),
    Sketcher.Constraint("Horizontal", 2),
    Sketcher.Constraint("Vertical", 3),
    Sketcher.Constraint("Vertical", 4),
    Sketcher.Constraint("Horizontal", 5),
    Sketcher.Constraint("Vertical", 6),
    Sketcher.Constraint("Horizontal", 7),
    Sketcher.Constraint("Vertical", 8),
    Sketcher.Constraint("Horizontal", 2, 2, 4, 2),
    Sketcher.Constraint("Horizontal", 3, 2, 6, 2),
    Sketcher.Constraint("Vertical", 4, 2, 7, 2),
    Sketcher.Constraint("Equal", 2, 5),
    Sketcher.Constraint("Equal", 4, 8),
    Sketcher.Constraint("Radius", 9, Q("2.5 mm")),
    Sketcher.Constraint("DistanceX", 0, 2, 0, 1, Q("6 mm")),
    Sketcher.Constraint("DistanceY", 1, 1, 1, 2, Q("35 mm")),
    Sketcher.Constraint("DistanceY", 0, 2, -1, 1, Q("42 mm")),
    Sketcher.Constraint("DistanceX", 4, 2, 1, 2, Q("15 mm")),
    Sketcher.Constraint("DistanceX", -1, 1, 9, 3, Q("79.8 mm")),
    Sketcher.Constraint("DistanceX", -1, 1, 0, 2, Q("94.5 mm")),
])
pocket11 = body.newObject("PartDesign::Pocket", "Pocket010")
pocket11.Profile = sketch14
pocket11.Length = 10
pocket11.Reversed = True
doc.recompute()

fillet = body.newObject("PartDesign::Fillet", "Fillet")
fillet.Base = (pocket11, edges_at(pocket11, [
    (-1.5, 55.384, -31.5),
    (-1.5, 66.327, -31.5),
    (-1.5, 75.017, -24.5),
    (-1.5, 66.327, -17.5),
    (-1.5, 55.384, -17.5),
    (-1.5, 100.5, -7),
    (-1.5, 94.5, -7),
    (-1.5, 94.5, -42),
    (-1.5, 100.5, -42),
    (-1.5, 85.5, -7),
    (-1.5, 79.5, -7),
    (-1.5, 79.5, -22.018),
    (-1.5, 79.5, -26.982),
    (-1.5, 79.5, -42),
    (-1.5, 85.5, -42),
]))
fillet.Radius = 2

doc.recompute()
